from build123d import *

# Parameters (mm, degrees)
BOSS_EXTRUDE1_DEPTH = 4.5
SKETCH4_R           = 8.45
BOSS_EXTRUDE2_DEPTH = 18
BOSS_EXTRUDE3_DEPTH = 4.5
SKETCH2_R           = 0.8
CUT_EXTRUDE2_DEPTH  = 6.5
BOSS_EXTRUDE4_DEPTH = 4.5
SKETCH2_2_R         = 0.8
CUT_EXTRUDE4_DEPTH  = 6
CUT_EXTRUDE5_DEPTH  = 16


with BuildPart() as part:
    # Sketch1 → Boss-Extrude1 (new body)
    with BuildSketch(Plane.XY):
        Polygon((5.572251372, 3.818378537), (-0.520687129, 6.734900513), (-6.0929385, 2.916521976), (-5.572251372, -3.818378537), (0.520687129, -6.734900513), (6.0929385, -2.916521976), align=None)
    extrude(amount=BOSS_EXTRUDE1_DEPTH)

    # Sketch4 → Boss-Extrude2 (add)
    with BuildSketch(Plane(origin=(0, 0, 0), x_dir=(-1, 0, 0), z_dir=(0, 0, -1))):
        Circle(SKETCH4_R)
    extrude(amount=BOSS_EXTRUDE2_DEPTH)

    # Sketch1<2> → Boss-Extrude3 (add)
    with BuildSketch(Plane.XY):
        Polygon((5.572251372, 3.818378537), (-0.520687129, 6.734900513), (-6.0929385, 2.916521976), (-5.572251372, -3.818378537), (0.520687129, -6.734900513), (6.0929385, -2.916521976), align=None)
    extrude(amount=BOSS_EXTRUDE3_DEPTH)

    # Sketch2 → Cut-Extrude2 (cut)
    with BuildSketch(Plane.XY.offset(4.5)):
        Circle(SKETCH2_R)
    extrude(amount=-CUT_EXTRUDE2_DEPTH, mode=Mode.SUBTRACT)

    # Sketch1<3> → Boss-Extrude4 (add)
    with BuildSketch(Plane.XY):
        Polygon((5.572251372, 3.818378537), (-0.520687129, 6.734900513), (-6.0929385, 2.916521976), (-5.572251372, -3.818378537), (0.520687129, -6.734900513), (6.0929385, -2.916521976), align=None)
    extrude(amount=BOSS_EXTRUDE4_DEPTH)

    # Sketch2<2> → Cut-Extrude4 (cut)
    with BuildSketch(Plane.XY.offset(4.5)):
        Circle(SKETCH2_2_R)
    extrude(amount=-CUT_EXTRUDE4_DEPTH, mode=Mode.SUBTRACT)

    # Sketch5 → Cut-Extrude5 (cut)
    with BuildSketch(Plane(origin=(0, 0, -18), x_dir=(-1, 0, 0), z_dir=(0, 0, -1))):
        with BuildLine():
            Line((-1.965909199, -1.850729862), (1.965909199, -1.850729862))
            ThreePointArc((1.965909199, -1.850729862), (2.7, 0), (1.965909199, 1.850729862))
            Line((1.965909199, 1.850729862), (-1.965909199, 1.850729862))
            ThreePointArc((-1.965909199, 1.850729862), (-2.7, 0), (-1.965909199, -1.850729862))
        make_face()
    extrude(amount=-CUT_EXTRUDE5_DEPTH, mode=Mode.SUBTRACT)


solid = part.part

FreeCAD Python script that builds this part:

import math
import FreeCAD as App
import Part
import Sketcher
from FreeCAD import Vector


def add_polygon(sketch, points):
    """Adds a closed chain of lines whose ends are joined by coincident constraints."""
    first, n = sketch.GeometryCount, len(points)
    for a, b in zip(points, points[1:] + points[:1]):
        sketch.addGeometry(Part.LineSegment(App.Vector(*a, 0), App.Vector(*b, 0)), False)
    for i in range(n):
        sketch.addConstraint(Sketcher.Constraint("Coincident", first + i, 2, first + (i + 1) % n, 1))

doc = App.newDocument("Part")
body = doc.addObject("PartDesign::Body", "Body")

sketch1 = doc.addObject("Sketcher::SketchObject", "Sketch")
body.addObject(sketch1)
sketch1.AttachmentSupport = (doc.XY_Plane, [""])
sketch1.MapMode = "FlatFace"
add_polygon(sketch1, [(5.572251, 3.818379), (-0.520687, 6.734901), (-6.092938, 2.916522), (-5.572251, -3.818379), (0.520687, -6.734901), (6.092938, -2.916522)])
sketch1.addConstraint(Sketcher.Constraint("Distance", 0, 6.754998))
sketch1.addConstraint(Sketcher.Constraint("Distance", 1, 6.754998))
sketch1.addConstraint(Sketcher.Constraint("Distance", 2, 6.754998))
sketch1.addConstraint(Sketcher.Constraint("Distance", 3, 6.754998))
sketch1.addConstraint(Sketcher.Constraint("Distance", 4, 6.754998))
sketch1.addConstraint(Sketcher.Constraint("Distance", 5, 6.754998))
sketch1.addConstraint(Sketcher.Constraint("DistanceY", -1, 1, 0, 2, 6.734901))
sketch1.addConstraint(Sketcher.Constraint("DistanceY", 3, 2, -1, 1, 6.734901))
sketch1.addConstraint(Sketcher.Constraint("DistanceY", 2, 2, 1, 2, 6.734901))
sketch1.addConstraint(Sketcher.Constraint("DistanceY", 4, 2, 5, 2, 6.734901))
sketch1.addConstraint(Sketcher.Constraint("DistanceX", 1, 2, -1, 1, 6.092938))
sketch1.addConstraint(Sketcher.Constraint("DistanceY", -1, 1, 1, 2, 2.916522))
pad1 = doc.addObject("PartDesign::Pad", "Pad")
body.addObject(pad1)
pad1.Profile = sketch1
pad1.Length = 4.5

sketch2 = doc.addObject("Sketcher::SketchObject", "Sketch001")
body.addObject(sketch2)
sketch2.AttachmentSupport = (doc.XY_Plane, [""])
sketch2.MapMode = "FlatFace"
sketch2.addGeometry(Part.Circle(Vector(0, 0, 0), Vector(0, 0, 1), 8), False)
sketch2.addConstraint(Sketcher.Constraint("Coincident", 0, 3, -1, 1))
sketch2.addConstraint(Sketcher.Constraint("Diameter", 0, 16.9))
pad2 = doc.addObject("PartDesign::Pad", "Pad001")
body.addObject(pad2)
pad2.Profile = sketch2
pad2.Length = 18
pad2.Reversed = True

sketch3 = doc.addObject("Sketcher::SketchObject", "Sketch002")
body.addObject(sketch3)
sketch3.AttachmentSupport = (doc.XY_Plane, [""])
sketch3.MapMode = "FlatFace"
add_polygon(sketch3, [(5.572251, 3.818379), (-0.520687, 6.734901), (-6.092938, 2.916522), (-5.572251, -3.818379), (0.520687, -6.734901), (6.092938, -2.916522)])
sketch3.addConstraint(Sketcher.Constraint("Distance", 0, 6.754998))
sketch3.addConstraint(Sketcher.Constraint("Distance", 1, 6.754998))
sketch3.addConstraint(Sketcher.Constraint("Distance", 2, 6.754998))
sketch3.addConstraint(Sketcher.Constraint("Distance", 3, 6.754998))
sketch3.addConstraint(Sketcher.Constraint("Distance", 4, 6.754998))
sketch3.addConstraint(Sketcher.Constraint("Distance", 5, 6.754998))
sketch3.addConstraint(Sketcher.Constraint("DistanceY", -1, 1, 0, 2, 6.734901))
sketch3.addConstraint(Sketcher.Constraint("DistanceY", 3, 2, -1, 1, 6.734901))
sketch3.addConstraint(Sketcher.Constraint("DistanceY", 2, 2, 1, 2, 6.734901))
sketch3.addConstraint(Sketcher.Constraint("DistanceY", 4, 2, 5, 2, 6.734901))
sketch3.addConstraint(Sketcher.Constraint("DistanceX", 1, 2, -1, 1, 6.092938))
sketch3.addConstraint(Sketcher.Constraint("DistanceY", -1, 1, 1, 2, 2.916522))
pad3 = doc.addObject("PartDesign::Pad", "Pad002")
body.addObject(pad3)
pad3.Profile = sketch3
pad3.Length = 4.5

sketch4 = doc.addObject("Sketcher::SketchObject", "Sketch003")
body.addObject(sketch4)
sketch4.AttachmentSupport = (doc.XY_Plane, [""])
sketch4.MapMode = "FlatFace"
sketch4.AttachmentOffset = App.Placement(Vector(0, 0, 4.5), App.Rotation())
sketch4.addGeometry(Part.Circle(Vector(0, 0, 0), Vector(0, 0, 1), 0.8), False)
sketch4.addConstraint(Sketcher.Constraint("Coincident", 0, 3, -1, 1))
sketch4.addConstraint(Sketcher.Constraint("Diameter", 0, 1.6))
pocket1 = doc.addObject("PartDesign::Pocket", "Pocket")
body.addObject(pocket1)
pocket1.Profile = sketch4
pocket1.Length = 6.5

sketch5 = doc.addObject("Sketcher::SketchObject", "Sketch004")
body.addObject(sketch5)
sketch5.AttachmentSupport = (doc.XY_Plane, [""])
sketch5.MapMode = "FlatFace"
add_polygon(sketch5, [(5.572251, 3.818379), (-0.520687, 6.734901), (-6.092938, 2.916522), (-5.572251, -3.818379), (0.520687, -6.734901), (6.092938, -2.916522)])
sketch5.addConstraint(Sketcher.Constraint("Distance", 0, 6.754998))
sketch5.addConstraint(Sketcher.Constraint("Distance", 1, 6.754998))
sketch5.addConstraint(Sketcher.Constraint("Distance", 2, 6.754998))
sketch5.addConstraint(Sketcher.Constraint("Distance", 3, 6.754998))
sketch5.addConstraint(Sketcher.Constraint("Distance", 4, 6.754998))
sketch5.addConstraint(Sketcher.Constraint("Distance", 5, 6.754998))
sketch5.addConstraint(Sketcher.Constraint("DistanceY", -1, 1, 0, 2, 6.734901))
sketch5.addConstraint(Sketcher.Constraint("DistanceY", 3, 2, -1, 1, 6.734901))
sketch5.addConstraint(Sketcher.Constraint("DistanceY", 2, 2, 1, 2, 6.734901))
sketch5.addConstraint(Sketcher.Constraint("DistanceY", 4, 2, 5, 2, 6.734901))
sketch5.addConstraint(Sketcher.Constraint("DistanceX", 1, 2, -1, 1, 6.092938))
sketch5.addConstraint(Sketcher.Constraint("DistanceY", -1, 1, 1, 2, 2.916522))
pad4 = doc.addObject("PartDesign::Pad", "Pad003")
body.addObject(pad4)
pad4.Profile = sketch5
pad4.Length = 4.5

sketch6 = doc.addObject("Sketcher::SketchObject", "Sketch005")
body.addObject(sketch6)
sketch6.AttachmentSupport = (doc.XY_Plane, [""])
sketch6.MapMode = "FlatFace"
sketch6.AttachmentOffset = App.Placement(Vector(0, 0, 4.5), App.Rotation())
sketch6.addGeometry(Part.Circle(Vector(0, 0, 0), Vector(0, 0, 1), 0.8), False)
sketch6.addConstraint(Sketcher.Constraint("Coincident", 0, 3, -1, 1))
sketch6.addConstraint(Sketcher.Constraint("Diameter", 0, 1.6))
pocket2 = doc.addObject("PartDesign::Pocket", "Pocket001")
body.addObject(pocket2)
pocket2.Profile = sketch6
pocket2.Length = 6

sketch7 = doc.addObject("Sketcher::SketchObject", "Sketch006")
body.addObject(sketch7)
sketch7.AttachmentSupport = (doc.XY_Plane, [""])
sketch7.MapMode = "FlatFace"
sketch7.AttachmentOffset = App.Placement(Vector(0, 0, -18), App.Rotation())
sketch7.addGeometry(Part.LineSegment(Vector(2, -1.9, 0), Vector(-2, -1.9, 0)), False)
sketch7.addGeometry(Part.ArcOfCircle(Part.Circle(Vector(0, 0, 0), Vector(0, 0, 1), 2.7), math.radians(137), math.radians(223)), False)
sketch7.addGeometry(Part.LineSegment(Vector(-2, 1.9, 0), Vector(2, 1.9, 0)), False)
sketch7.addGeometry(Part.ArcOfCircle(Part.Circle(Vector(0, 0, 0), Vector(0, 0, 1), 2.7), math.radians(-43), math.radians(43)), False)
sketch7.addConstraint(Sketcher.Constraint("Coincident", 0, 2, 1, 2))
sketch7.addConstraint(Sketcher.Constraint("Coincident", 1, 1, 2, 1))
sketch7.addConstraint(Sketcher.Constraint("Coincident", 2, 2, 3, 2))
sketch7.addConstraint(Sketcher.Constraint("Coincident", 3, 1, 0, 1))
sketch7.addConstraint(Sketcher.Constraint("Horizontal", 0))
sketch7.addConstraint(Sketcher.Constraint("Horizontal", 2))
sketch7.addConstraint(Sketcher.Constraint("Coincident", 1, 3, -1, 1))
sketch7.addConstraint(Sketcher.Constraint("Coincident", 3, 3, -1, 1))
sketch7.addConstraint(Sketcher.Constraint("Equal", 1, 3))
sketch7.addConstraint(Sketcher.Constraint("Vertical", 0, 2, 1, 1))
sketch7.addConstraint(Sketcher.Constraint("Radius", 1, 2.7))
sketch7.addConstraint(Sketcher.Constraint("DistanceX", 0, 2, 0, 1, 3.931818))
pocket3 = doc.addObject("PartDesign::Pocket", "Pocket002")
body.addObject(pocket3)
pocket3.Profile = sketch7
pocket3.Length = 16
pocket3.Reversed = True

doc.recompute()
